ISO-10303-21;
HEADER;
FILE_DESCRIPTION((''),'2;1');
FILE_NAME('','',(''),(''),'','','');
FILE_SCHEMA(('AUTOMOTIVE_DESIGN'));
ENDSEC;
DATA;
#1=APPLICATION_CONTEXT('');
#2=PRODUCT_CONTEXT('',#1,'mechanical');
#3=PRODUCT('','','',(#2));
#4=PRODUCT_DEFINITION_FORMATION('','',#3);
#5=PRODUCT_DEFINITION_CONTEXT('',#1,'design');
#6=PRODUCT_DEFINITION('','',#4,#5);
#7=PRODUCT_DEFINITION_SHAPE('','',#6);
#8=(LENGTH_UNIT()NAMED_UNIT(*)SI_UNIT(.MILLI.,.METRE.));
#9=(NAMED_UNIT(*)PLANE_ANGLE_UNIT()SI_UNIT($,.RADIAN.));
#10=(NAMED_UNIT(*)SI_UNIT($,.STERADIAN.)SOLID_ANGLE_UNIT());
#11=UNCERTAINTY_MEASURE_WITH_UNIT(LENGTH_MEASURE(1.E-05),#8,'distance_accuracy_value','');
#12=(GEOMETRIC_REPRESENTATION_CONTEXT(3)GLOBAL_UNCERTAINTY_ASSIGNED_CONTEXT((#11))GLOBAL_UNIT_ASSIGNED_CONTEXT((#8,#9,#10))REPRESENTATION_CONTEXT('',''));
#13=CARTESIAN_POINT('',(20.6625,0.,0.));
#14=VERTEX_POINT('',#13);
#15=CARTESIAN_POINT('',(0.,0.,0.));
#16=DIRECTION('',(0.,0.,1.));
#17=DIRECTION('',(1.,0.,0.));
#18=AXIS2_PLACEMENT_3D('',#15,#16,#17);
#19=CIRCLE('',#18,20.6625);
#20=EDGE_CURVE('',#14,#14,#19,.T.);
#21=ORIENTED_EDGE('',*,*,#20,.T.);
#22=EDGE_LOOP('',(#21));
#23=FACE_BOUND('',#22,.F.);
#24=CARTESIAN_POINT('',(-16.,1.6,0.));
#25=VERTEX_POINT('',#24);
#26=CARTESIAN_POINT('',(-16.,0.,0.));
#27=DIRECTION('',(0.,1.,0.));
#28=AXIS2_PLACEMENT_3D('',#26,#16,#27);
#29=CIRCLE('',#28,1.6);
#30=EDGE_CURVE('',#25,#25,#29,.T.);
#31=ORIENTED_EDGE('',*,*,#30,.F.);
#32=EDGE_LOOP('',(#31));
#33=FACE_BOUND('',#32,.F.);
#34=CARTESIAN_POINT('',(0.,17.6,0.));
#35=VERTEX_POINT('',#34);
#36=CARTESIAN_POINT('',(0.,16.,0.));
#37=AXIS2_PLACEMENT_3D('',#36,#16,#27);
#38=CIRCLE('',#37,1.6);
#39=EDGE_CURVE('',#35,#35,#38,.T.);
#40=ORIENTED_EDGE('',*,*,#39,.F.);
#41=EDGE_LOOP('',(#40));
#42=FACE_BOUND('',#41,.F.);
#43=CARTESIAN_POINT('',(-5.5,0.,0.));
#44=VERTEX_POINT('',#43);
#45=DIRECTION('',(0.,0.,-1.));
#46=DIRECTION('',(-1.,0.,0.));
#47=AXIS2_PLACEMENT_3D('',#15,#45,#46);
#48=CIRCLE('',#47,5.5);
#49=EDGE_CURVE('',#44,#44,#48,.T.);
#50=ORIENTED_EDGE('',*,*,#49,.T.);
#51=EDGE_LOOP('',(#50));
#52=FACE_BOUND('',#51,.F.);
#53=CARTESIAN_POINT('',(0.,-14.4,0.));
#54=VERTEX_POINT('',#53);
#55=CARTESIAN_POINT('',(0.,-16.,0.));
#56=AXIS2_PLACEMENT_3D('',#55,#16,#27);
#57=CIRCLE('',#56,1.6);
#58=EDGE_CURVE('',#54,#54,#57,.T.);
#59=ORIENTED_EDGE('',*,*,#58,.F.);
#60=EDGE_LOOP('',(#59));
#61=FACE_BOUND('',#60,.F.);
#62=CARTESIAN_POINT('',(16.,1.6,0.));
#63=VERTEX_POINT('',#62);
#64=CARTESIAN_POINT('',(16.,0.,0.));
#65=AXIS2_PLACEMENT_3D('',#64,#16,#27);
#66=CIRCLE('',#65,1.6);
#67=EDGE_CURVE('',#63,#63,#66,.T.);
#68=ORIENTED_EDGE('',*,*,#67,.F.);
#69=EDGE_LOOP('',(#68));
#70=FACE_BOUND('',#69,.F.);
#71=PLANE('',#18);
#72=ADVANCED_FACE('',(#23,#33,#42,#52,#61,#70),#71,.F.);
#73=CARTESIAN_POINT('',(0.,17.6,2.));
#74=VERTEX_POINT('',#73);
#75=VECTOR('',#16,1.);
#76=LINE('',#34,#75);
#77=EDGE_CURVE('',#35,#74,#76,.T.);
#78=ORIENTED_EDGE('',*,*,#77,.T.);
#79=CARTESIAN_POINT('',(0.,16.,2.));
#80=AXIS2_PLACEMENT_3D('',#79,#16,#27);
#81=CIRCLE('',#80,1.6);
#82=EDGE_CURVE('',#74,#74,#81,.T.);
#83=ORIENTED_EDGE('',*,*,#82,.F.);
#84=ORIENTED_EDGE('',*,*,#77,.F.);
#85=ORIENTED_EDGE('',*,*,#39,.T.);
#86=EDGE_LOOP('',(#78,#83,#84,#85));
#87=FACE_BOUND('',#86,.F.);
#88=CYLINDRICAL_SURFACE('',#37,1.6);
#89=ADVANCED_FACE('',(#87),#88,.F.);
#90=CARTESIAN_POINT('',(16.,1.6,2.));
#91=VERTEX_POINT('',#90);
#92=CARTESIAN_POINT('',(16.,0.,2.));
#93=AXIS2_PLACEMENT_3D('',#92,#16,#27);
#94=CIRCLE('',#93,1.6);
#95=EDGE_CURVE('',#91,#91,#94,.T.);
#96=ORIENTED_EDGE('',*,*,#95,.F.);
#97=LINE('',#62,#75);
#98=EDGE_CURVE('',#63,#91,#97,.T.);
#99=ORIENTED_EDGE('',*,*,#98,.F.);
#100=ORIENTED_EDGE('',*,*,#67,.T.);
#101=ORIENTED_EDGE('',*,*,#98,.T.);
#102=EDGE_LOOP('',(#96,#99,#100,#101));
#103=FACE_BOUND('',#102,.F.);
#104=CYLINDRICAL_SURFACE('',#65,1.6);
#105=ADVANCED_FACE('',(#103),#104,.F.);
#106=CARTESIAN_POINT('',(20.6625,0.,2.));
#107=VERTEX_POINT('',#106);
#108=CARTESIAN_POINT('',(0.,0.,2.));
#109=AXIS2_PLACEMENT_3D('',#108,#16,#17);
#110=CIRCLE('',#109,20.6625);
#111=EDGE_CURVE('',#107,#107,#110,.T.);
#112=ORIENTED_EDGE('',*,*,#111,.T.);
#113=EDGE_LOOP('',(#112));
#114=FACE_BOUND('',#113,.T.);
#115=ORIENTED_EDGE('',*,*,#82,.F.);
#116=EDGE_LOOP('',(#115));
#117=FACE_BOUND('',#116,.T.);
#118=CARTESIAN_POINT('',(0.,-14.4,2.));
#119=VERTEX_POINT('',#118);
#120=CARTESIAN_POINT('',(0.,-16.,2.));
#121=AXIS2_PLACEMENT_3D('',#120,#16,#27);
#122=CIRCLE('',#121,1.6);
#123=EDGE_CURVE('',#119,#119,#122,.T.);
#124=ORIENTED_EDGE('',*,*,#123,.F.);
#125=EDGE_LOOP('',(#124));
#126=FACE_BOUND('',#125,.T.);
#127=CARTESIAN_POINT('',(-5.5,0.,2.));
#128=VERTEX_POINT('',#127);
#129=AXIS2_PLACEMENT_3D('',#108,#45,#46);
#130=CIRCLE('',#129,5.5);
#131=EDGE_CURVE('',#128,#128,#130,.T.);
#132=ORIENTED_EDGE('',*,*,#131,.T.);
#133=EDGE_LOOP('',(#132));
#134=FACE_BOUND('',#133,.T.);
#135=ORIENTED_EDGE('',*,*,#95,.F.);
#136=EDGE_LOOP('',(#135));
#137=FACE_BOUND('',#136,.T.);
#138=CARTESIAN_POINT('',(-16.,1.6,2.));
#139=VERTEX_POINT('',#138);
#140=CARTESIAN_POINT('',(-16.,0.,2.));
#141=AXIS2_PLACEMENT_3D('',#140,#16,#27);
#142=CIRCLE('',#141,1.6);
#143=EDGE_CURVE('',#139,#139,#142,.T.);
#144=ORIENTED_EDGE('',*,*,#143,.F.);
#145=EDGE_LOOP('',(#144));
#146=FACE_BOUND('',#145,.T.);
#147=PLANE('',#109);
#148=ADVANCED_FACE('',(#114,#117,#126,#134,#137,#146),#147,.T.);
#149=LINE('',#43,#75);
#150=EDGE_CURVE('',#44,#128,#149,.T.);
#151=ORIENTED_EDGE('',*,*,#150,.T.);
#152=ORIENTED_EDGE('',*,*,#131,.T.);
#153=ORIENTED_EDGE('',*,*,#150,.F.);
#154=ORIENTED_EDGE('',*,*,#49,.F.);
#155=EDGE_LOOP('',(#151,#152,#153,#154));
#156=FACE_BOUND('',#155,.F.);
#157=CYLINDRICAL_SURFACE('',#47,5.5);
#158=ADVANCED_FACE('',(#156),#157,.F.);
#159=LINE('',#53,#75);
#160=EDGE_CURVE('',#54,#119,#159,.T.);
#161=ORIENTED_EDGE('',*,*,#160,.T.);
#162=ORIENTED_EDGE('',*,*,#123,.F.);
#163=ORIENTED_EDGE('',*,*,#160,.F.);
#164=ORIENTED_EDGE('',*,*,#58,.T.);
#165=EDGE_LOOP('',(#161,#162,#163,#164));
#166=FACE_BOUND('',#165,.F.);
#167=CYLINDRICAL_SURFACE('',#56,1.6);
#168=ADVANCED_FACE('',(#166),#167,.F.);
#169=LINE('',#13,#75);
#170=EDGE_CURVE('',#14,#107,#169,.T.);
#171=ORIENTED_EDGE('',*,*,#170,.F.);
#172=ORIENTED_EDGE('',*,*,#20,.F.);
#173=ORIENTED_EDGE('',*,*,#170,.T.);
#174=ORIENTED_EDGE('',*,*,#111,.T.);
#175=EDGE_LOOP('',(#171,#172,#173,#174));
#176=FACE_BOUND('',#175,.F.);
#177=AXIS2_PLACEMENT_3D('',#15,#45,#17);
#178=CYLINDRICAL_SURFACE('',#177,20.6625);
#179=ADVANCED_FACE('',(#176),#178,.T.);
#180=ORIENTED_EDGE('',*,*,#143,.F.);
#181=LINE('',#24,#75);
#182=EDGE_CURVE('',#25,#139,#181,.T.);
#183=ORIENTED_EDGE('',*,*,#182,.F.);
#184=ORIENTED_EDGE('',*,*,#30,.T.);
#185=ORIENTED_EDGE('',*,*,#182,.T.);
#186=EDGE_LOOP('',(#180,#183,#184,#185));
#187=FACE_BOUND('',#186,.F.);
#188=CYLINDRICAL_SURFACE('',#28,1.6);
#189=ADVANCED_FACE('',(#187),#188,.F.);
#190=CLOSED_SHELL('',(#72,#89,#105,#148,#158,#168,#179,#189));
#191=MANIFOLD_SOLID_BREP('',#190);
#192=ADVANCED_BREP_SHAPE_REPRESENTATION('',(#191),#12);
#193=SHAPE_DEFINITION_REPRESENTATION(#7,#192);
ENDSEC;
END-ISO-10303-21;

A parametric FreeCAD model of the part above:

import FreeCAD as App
import Part
import Sketcher
from FreeCAD import Vector

doc = App.newDocument("Part")
body = doc.addObject("PartDesign::Body", "Body")

# Sketch on XY plane
sketch1 = body.newObject("Sketcher::SketchObject", "Sketch")
sketch1.AttachmentSupport = (doc.getObject("XY_Plane"), [""])
sketch1.MapMode = "FlatFace"
sketch1.addGeometry(Part.Circle(Vector(0, 0, 0), Vector(0, 0, 1), 20.6625), False)
sketch1.addConstraint([
    Sketcher.Constraint("Coincident", 0, 3, -1, 1),
    Sketcher.Constraint("Diameter", 0, 41.325),
])
pad1 = body.newObject("PartDesign::Pad", "Pad")
pad1.Profile = sketch1
pad1.Length = 2

# Sketch on XY plane
sketch2 = body.newObject("Sketcher::SketchObject", "Sketch001")
sketch2.AttachmentSupport = (doc.getObject("XY_Plane"), [""])
sketch2.MapMode = "FlatFace"
sketch2.addGeometry([
    Part.Circle(Vector(16, 0, 0), Vector(0, 0, 1), 1.6),
    Part.Circle(Vector(0, 16, 0), Vector(0, 0, 1), 1.6),
    Part.Circle(Vector(-16, 0, 0), Vector(0, 0, 1), 1.6),
    Part.Circle(Vector(0, -16, 0), Vector(0, 0, 1), 1.6),
], False)
sketch2.addConstraint([
    Sketcher.Constraint("Equal", 0, 1),
    Sketcher.Constraint("Equal", 1, 2),
    Sketcher.Constraint("Equal", 2, 3),
    Sketcher.Constraint("Symmetric", 0, 3, 2, 3, -1, 1),
    Sketcher.Constraint("Symmetric", 1, 3, 3, 3, -1, 1),
    Sketcher.Constraint("PointOnObject", 0, 3, -1),
    Sketcher.Constraint("PointOnObject", 1, 3, -2),
    Sketcher.Constraint("Diameter", 0, 3.2),
    Sketcher.Constraint("DistanceX", -1, 1, 0, 3, 16.0),
    Sketcher.Constraint("DistanceY", -1, 1, 1, 3, 16.0),
])
doc.recompute()
hole = body.newObject("PartDesign::Hole", "Hole")
hole.Profile = sketch2
hole.ThreadType = "None"
hole.Diameter = 3.2
hole.DepthType = "ThroughAll"
hole.Reversed = True

# Sketch on XY plane
sketch3 = body.newObject("Sketcher::SketchObject", "Sketch002")
sketch3.AttachmentSupport = (doc.getObject("XY_Plane"), [""])
sketch3.MapMode = "FlatFace"
sketch3.addGeometry(Part.Circle(Vector(0, 0, 0), Vector(0, 0, 1), 5.5), False)
sketch3.addConstraint([
    Sketcher.Constraint("Coincident", 0, 3, -1, 1),
    Sketcher.Constraint("Diameter", 0, 11.0),
])
pocket1 = body.newObject("PartDesign::Pocket", "Pocket")
pocket1.Profile = sketch3
pocket1.Length = 2
pocket1.Reversed = True

doc.recompute()
